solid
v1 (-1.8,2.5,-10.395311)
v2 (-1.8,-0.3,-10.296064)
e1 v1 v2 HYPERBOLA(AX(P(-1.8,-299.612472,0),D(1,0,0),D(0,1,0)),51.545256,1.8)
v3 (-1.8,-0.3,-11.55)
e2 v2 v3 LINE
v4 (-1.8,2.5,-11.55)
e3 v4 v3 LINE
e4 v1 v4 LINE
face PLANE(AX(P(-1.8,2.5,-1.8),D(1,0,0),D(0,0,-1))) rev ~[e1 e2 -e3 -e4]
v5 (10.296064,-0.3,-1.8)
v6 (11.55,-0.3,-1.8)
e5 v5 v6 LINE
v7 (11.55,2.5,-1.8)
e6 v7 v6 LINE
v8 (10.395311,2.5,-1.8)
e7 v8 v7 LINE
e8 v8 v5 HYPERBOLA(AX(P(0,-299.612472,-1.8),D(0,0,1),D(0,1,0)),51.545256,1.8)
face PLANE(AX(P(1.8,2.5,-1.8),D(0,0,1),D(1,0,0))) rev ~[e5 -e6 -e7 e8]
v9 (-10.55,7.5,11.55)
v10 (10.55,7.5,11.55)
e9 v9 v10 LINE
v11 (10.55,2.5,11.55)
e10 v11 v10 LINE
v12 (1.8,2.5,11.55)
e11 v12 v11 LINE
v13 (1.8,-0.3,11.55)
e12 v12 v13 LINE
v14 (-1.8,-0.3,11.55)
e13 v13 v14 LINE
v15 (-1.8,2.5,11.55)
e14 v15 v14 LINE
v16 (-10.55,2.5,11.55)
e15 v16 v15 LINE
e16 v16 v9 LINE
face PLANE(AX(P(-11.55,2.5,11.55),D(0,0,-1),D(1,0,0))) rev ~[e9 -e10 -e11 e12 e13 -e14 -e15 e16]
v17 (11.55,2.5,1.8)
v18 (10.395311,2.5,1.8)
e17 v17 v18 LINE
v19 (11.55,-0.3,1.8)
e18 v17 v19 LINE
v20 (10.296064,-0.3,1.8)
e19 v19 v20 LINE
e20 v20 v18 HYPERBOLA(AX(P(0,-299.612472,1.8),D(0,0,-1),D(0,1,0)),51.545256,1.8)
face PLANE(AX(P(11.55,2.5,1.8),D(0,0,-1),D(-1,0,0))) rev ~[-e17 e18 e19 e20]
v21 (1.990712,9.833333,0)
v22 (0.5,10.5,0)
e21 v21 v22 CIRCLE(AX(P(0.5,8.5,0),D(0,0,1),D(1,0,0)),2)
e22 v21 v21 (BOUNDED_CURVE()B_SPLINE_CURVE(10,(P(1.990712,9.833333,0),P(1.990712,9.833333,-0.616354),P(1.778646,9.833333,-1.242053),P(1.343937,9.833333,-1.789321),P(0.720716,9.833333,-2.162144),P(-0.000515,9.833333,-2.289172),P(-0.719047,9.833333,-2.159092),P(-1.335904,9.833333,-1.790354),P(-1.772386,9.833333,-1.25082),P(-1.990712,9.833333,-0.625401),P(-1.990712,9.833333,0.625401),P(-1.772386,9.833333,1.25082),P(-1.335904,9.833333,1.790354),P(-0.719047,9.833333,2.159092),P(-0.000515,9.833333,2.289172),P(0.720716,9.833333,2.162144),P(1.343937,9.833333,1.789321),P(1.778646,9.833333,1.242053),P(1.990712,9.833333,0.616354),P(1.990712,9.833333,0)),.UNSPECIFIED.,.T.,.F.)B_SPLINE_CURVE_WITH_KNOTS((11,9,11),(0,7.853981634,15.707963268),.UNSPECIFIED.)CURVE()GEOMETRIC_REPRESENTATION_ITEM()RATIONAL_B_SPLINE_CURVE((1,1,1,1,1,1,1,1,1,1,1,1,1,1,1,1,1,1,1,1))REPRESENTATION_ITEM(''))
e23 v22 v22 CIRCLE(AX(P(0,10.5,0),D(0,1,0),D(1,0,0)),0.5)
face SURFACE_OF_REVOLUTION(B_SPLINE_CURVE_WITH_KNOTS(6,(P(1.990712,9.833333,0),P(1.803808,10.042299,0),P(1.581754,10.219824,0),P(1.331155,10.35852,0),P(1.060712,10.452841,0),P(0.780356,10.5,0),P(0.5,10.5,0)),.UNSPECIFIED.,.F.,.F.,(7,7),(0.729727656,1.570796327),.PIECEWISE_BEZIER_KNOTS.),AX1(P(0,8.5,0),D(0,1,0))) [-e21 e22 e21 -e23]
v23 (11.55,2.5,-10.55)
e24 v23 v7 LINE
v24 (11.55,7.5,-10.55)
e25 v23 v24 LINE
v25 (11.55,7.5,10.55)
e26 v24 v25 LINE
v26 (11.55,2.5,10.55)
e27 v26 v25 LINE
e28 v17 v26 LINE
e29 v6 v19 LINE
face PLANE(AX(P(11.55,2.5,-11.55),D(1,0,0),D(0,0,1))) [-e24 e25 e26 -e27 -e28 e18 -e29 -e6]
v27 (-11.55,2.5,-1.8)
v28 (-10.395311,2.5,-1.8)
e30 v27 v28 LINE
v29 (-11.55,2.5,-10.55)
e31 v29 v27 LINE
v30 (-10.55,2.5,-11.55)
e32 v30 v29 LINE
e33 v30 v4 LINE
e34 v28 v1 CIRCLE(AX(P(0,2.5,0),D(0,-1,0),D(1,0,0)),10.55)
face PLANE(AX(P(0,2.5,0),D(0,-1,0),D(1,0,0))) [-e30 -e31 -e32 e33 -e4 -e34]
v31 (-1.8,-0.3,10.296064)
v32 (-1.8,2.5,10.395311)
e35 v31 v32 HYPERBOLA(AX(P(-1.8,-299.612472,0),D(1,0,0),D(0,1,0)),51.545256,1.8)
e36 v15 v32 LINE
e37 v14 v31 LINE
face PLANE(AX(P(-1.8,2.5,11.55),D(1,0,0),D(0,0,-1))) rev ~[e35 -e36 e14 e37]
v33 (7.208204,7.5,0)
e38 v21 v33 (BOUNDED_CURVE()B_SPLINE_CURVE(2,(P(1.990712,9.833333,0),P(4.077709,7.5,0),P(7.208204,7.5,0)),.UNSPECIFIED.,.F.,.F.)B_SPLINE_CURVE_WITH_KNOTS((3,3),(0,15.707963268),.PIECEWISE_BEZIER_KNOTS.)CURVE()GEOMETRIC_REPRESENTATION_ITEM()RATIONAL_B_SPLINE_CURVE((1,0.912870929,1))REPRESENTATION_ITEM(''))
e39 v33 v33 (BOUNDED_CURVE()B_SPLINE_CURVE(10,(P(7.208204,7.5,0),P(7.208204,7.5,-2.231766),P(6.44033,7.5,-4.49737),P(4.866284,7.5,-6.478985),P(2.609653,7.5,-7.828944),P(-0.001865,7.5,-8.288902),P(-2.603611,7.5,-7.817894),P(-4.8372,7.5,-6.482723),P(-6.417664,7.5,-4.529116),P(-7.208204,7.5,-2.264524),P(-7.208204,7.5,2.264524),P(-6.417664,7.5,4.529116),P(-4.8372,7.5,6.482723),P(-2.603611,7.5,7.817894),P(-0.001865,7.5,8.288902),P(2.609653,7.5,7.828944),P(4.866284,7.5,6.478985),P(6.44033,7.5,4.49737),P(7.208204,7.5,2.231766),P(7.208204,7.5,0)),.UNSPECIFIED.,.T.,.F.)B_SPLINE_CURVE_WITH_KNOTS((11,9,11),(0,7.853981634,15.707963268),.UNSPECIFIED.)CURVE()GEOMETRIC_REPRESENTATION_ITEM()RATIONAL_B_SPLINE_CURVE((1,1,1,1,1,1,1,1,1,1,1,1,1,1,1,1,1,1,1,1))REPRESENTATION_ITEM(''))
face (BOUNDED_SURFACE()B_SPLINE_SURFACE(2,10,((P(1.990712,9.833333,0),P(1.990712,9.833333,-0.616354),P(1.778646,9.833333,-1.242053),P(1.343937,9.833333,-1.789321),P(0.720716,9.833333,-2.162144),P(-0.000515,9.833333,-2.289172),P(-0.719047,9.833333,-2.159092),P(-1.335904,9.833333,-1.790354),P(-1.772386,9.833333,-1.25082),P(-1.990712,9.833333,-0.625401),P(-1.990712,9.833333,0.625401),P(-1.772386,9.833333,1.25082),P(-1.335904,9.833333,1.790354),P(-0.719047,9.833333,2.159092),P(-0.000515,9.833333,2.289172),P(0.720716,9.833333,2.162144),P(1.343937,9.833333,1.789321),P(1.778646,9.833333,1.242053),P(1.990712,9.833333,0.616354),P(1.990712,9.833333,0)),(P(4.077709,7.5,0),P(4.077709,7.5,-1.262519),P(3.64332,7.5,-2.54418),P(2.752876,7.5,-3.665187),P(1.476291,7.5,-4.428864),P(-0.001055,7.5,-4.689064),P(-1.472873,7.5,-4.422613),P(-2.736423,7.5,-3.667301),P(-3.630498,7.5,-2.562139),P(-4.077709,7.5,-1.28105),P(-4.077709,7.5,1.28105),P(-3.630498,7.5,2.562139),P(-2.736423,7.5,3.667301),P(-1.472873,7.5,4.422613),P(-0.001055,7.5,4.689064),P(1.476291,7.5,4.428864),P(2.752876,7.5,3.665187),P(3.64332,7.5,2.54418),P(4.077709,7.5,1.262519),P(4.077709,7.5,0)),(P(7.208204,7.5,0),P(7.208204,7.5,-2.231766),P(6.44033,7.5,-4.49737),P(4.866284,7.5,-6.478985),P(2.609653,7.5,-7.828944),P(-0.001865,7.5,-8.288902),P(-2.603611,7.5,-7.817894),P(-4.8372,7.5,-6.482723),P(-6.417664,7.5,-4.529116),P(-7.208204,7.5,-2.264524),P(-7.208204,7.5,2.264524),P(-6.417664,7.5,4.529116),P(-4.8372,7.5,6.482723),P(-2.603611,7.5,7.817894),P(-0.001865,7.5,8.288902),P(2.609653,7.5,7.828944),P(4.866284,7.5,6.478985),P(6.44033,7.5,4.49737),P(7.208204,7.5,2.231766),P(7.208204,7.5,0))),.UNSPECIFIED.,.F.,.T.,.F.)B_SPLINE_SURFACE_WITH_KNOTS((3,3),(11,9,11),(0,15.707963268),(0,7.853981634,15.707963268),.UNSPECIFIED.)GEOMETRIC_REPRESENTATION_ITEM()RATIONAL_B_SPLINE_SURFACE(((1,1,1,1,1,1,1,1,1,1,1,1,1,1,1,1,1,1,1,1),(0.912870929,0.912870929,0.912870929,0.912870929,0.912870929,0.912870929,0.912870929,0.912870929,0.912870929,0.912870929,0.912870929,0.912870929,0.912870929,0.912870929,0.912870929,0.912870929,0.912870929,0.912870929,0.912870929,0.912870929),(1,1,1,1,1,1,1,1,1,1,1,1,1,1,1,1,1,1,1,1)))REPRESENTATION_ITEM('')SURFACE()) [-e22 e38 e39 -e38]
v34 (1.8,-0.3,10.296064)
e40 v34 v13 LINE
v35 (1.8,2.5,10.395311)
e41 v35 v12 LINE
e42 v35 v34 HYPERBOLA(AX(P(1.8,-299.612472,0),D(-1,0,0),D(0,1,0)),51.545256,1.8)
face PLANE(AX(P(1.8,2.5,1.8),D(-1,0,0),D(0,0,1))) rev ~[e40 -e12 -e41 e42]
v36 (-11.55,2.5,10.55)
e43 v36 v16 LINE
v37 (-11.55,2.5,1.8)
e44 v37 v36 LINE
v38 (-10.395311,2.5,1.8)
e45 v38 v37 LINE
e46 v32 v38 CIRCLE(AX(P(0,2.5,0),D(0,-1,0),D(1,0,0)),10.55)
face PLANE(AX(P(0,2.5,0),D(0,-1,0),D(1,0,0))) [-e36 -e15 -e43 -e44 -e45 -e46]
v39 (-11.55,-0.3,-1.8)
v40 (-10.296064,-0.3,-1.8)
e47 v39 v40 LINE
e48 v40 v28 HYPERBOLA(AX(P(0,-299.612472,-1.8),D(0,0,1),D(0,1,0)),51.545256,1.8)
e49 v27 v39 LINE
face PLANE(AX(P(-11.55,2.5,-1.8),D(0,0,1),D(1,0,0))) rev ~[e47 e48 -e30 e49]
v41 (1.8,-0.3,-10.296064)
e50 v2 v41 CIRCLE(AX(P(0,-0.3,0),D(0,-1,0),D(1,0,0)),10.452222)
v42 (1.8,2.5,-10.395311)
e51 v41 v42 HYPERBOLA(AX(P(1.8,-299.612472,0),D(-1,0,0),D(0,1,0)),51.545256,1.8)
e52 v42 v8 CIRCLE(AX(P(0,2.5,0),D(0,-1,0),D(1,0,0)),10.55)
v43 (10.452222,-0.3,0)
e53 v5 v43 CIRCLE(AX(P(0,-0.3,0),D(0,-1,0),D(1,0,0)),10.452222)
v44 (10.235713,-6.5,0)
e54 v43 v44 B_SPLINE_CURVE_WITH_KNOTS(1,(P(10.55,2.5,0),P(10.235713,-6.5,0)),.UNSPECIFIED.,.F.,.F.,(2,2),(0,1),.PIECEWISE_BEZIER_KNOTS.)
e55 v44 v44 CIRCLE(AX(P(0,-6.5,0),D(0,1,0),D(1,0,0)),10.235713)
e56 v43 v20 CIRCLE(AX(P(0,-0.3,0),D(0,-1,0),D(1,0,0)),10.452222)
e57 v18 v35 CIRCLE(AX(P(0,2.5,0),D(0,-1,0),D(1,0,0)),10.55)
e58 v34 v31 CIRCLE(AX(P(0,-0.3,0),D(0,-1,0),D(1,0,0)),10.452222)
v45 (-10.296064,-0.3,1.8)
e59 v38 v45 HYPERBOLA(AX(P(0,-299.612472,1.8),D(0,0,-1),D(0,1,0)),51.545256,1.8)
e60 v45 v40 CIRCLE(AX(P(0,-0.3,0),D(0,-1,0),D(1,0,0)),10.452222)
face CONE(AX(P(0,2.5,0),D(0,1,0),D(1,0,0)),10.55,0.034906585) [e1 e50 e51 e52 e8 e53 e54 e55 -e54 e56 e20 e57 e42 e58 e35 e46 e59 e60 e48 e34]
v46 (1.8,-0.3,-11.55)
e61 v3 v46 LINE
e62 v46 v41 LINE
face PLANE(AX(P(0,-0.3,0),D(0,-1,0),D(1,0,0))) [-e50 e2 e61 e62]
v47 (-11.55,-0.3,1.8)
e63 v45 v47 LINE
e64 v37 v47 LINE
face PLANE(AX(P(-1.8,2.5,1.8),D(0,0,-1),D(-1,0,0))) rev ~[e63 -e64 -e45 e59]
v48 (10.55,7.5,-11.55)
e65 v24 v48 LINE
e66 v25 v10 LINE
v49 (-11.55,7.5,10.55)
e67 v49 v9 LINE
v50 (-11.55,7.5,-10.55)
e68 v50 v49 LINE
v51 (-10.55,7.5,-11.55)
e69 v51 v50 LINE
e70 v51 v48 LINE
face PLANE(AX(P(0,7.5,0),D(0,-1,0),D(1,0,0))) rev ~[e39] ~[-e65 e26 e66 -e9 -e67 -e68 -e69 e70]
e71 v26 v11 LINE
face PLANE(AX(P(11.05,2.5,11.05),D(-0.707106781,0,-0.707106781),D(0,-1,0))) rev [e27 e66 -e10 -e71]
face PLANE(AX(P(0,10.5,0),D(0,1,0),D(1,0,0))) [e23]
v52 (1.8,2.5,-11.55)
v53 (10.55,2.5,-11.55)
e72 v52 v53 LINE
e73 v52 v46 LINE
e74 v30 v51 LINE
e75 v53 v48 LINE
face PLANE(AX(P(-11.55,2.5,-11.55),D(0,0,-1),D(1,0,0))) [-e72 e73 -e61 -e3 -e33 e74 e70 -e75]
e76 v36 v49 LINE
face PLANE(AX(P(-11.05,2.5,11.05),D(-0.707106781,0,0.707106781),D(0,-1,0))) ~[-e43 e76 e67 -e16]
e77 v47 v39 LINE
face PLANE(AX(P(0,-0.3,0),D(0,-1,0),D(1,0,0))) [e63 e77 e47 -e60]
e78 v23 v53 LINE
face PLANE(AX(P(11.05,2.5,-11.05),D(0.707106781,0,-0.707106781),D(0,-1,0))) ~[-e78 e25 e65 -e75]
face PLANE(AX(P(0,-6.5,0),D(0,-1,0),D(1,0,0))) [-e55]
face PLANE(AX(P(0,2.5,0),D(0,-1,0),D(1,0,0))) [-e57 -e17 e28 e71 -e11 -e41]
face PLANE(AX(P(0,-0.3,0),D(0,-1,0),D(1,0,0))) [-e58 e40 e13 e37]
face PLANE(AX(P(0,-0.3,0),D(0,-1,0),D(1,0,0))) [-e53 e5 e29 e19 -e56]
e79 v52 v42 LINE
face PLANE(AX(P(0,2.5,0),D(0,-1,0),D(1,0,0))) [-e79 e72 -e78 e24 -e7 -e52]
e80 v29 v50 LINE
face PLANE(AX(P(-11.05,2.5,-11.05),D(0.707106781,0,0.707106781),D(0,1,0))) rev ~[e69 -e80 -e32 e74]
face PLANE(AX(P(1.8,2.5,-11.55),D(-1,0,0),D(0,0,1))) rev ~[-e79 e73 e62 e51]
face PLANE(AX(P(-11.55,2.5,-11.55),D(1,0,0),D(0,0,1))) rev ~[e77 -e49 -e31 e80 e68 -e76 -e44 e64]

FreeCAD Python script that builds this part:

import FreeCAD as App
import Part
import Sketcher
from FreeCAD import Vector


def edges_at(feature, points):
    """Names of the edges that pass closest to the given points."""
    edges = feature.Shape.Edges
    near = lambda p: min(range(len(edges)), key=lambda i: edges[i].distToShape(Part.Vertex(*p))[0])
    return sorted({f"Edge{near(p) + 1}" for p in points})


def add_polygon(sketch, points):
    """Adds a closed chain of lines whose ends are joined by coincident constraints."""
    first, n = sketch.GeometryCount, len(points)
    for a, b in zip(points, points[1:] + points[:1]):
        sketch.addGeometry(Part.LineSegment(App.Vector(*a, 0), App.Vector(*b, 0)), False)
    for i in range(n):
        sketch.addConstraint(Sketcher.Constraint("Coincident", first + i, 2, first + (i + 1) % n, 1))

doc = App.newDocument("Part")
body = doc.addObject("PartDesign::Body", "Body")

sketch1 = body.newObject("Sketcher::SketchObject", "Sketch")
sketch1.AttachmentSupport = (doc.getObject("XZ_Plane"), [""])
sketch1.MapMode = "FlatFace"
add_polygon(sketch1, [(-1.8, 11.6), (-1.8, 1.8), (-11.6, 1.8), (-11.6, -1.8), (-1.8, -1.8), (-1.8, -11.6), (1.8, -11.6), (1.8, -1.8), (11.6, -1.8), (11.6, 1.8), (1.8, 1.8), (1.8, 11.6)])
sketch1.addConstraint([
    Sketcher.Constraint("Vertical", 0),
    Sketcher.Constraint("Horizontal", 1),
    Sketcher.Constraint("Vertical", 2),
    Sketcher.Constraint("Horizontal", 3),
    Sketcher.Constraint("Vertical", 4),
    Sketcher.Constraint("Horizontal", 5),
    Sketcher.Constraint("Vertical", 6),
    Sketcher.Constraint("Horizontal", 7),
    Sketcher.Constraint("Vertical", 8),
    Sketcher.Constraint("Horizontal", 9),
    Sketcher.Constraint("Vertical", 10),
    Sketcher.Constraint("Horizontal", 11),
    Sketcher.Constraint("Symmetric", 0, 2, 6, 2, -1, 1),
    Sketcher.Constraint("Symmetric", 2, 2, 8, 2, -1, 1),
    Sketcher.Constraint("Symmetric", 4, 2, 10, 2, -1, 1),
    Sketcher.Constraint("Symmetric", 3, 2, 6, 2, -2),
    Sketcher.Constraint("Equal", 9, 0),
    Sketcher.Constraint("Equal", 11, 2),
    Sketcher.Constraint("DistanceX", 5, 1, 5, 2, 3.6),
    Sketcher.Constraint("DistanceX", 1, 2, 1, 1, 9.75),
])
pad1 = body.newObject("PartDesign::Pad", "Pad")
pad1.Profile = sketch1
pad1.Length = 2.8

sketch2 = body.newObject("Sketcher::SketchObject", "Sketch001")
sketch2.AttachmentSupport = (doc.getObject("XZ_Plane"), [""])
sketch2.MapMode = "FlatFace"
add_polygon(sketch2, [(-12, 12), (-12, -12), (12, -12), (12, 12)])
sketch2.addConstraint([
    Sketcher.Constraint("Vertical", 0),
    Sketcher.Constraint("Horizontal", 1),
    Sketcher.Constraint("Vertical", 2),
    Sketcher.Constraint("Horizontal", 3),
    Sketcher.Constraint("Symmetric", 0, 2, 2, 2, -1, 1),
    Sketcher.Constraint("Equal", 3, 0),
    Sketcher.Constraint("DistanceX", 1, 1, 1, 2, 23.1),
])
pad2 = body.newObject("PartDesign::Pad", "Pad001")
pad2.Profile = sketch2
pad2.Length = 5
pad2.Reversed = True

sketch3 = body.newObject("Sketcher::SketchObject", "Sketch002")
sketch3.AttachmentSupport = (doc.getObject("XZ_Plane"), [""])
sketch3.MapMode = "FlatFace"
sketch3.AttachmentOffset = App.Placement(Vector(0, 0, -5), App.Rotation())
sketch3.addGeometry(Part.Circle(Vector(0, 0, 0), Vector(0, 0, 1), 2.5), False)
sketch3.addConstraint([
    Sketcher.Constraint("Coincident", 0, 3, -1, 1),
    Sketcher.Constraint("Diameter", 0, 5.0),
])
pad3 = body.newObject("PartDesign::Pad", "Pad002")
pad3.Profile = sketch3
pad3.Length = 3
pad3.Reversed = True
doc.recompute()

fillet = body.newObject("PartDesign::Fillet", "Fillet")
fillet.Base = (pad3, edges_at(pad3, [(-2.5, 8, 0)]))
fillet.Radius = 2
doc.recompute()

fillet2 = body.newObject("PartDesign::Fillet", "Fillet001")
fillet2.Base = (fillet, edges_at(fillet, [(-2.5, 5, 0)]))
fillet2.Radius = 7

sketch4 = body.newObject("Sketcher::SketchObject", "Sketch003")
sketch4.AttachmentSupport = (doc.getObject("XZ_Plane"), [""])
sketch4.MapMode = "FlatFace"
sketch4.addGeometry(Part.Circle(Vector(0, 0, 0), Vector(0, 0, 1), 11), False)
sketch4.addConstraint([
    Sketcher.Constraint("Coincident", 0, 3, -1, 1),
    Sketcher.Constraint("Diameter", 0, 21.1),
])
pad4 = body.newObject("PartDesign::Pad", "Pad003")
pad4.Profile = sketch4
pad4.Length = 9
pad4.TaperAngle = -2
doc.recompute()

chamfer = body.newObject("PartDesign::Chamfer", "Chamfer")
chamfer.Base = (pad4, edges_at(pad4, [
    (-11.55, 2.5, 11.55),
    (-11.55, 2.5, -11.55),
    (11.55, 2.5, 11.55),
    (11.55, 2.5, -11.55),
]))
chamfer.Size = 1
body2 = doc.addObject("PartDesign::Body", "Body001")
doc.recompute()

body.Placement = App.Placement(Vector(0, 2.5, 0), App.Rotation(Vector(0, 0, 1), 0))
boolean = body2.newObject("PartDesign::Boolean", "Boolean")
boolean.Type = "Fuse"
boolean.addObjects([body])

doc.recompute()
